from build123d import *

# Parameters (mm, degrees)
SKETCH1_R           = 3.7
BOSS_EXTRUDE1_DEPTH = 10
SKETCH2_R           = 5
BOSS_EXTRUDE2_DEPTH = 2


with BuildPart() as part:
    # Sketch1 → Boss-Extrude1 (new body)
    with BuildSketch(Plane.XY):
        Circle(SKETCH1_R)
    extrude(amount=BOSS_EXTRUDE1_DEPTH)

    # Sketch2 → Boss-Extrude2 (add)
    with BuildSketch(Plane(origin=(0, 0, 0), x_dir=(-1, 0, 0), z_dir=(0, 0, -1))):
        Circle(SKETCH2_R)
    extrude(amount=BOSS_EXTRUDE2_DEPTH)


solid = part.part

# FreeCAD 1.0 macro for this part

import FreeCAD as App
import Part
import Sketcher
from FreeCAD import Vector
Q = App.Units.Quantity

doc = App.newDocument("Part")
params = doc.addObject("Spreadsheet::Sheet", "Params")
for row, (alias, value) in enumerate([
    ("sketch1_diameter", "7.4 mm"),
    ("pad1_length", "10 mm"),
    ("sketch2_diameter", "10 mm"),
    ("pad2_length", "2 mm"),
], start=1):
    params.set(f"A{row}", alias)
    params.set(f"B{row}", "=" + value)
    params.setAlias(f"B{row}", alias)

body = doc.addObject("PartDesign::Body", "Body")

# Sketch on XY plane
sketch1 = body.newObject("Sketcher::SketchObject", "Sketch")
sketch1.AttachmentSupport = (doc.getObject("XY_Plane"), [""])
sketch1.MapMode = "FlatFace"
sketch1.addGeometry(Part.Circle(Vector(0, 0, 0), Vector(0, 0, 1), 3.7), False)
sketch1.addConstraint([
    Sketcher.Constraint("Coincident", 0, 3, -1, 1),
    Sketcher.Constraint("Diameter", 0, Q("7.4 mm")),
])
sketch1.setExpression("Constraints[1]", "Params.sketch1_diameter")
pad1 = body.newObject("PartDesign::Pad", "Pad")
pad1.Profile = sketch1
pad1.setExpression("Length", "Params.pad1_length")

# Sketch on XY plane
sketch2 = body.newObject("Sketcher::SketchObject", "Sketch001")
sketch2.AttachmentSupport = (doc.getObject("XY_Plane"), [""])
sketch2.MapMode = "FlatFace"
sketch2.addGeometry(Part.Circle(Vector(0, 0, 0), Vector(0, 0, 1), 5), False)
sketch2.addConstraint([
    Sketcher.Constraint("Coincident", 0, 3, -1, 1),
    Sketcher.Constraint("Diameter", 0, Q("10 mm")),
])
sketch2.setExpression("Constraints[1]", "Params.sketch2_diameter")
pad2 = body.newObject("PartDesign::Pad", "Pad001")
pad2.Profile = sketch2
pad2.setExpression("Length", "Params.pad2_length")
pad2.Reversed = True

doc.recompute()
